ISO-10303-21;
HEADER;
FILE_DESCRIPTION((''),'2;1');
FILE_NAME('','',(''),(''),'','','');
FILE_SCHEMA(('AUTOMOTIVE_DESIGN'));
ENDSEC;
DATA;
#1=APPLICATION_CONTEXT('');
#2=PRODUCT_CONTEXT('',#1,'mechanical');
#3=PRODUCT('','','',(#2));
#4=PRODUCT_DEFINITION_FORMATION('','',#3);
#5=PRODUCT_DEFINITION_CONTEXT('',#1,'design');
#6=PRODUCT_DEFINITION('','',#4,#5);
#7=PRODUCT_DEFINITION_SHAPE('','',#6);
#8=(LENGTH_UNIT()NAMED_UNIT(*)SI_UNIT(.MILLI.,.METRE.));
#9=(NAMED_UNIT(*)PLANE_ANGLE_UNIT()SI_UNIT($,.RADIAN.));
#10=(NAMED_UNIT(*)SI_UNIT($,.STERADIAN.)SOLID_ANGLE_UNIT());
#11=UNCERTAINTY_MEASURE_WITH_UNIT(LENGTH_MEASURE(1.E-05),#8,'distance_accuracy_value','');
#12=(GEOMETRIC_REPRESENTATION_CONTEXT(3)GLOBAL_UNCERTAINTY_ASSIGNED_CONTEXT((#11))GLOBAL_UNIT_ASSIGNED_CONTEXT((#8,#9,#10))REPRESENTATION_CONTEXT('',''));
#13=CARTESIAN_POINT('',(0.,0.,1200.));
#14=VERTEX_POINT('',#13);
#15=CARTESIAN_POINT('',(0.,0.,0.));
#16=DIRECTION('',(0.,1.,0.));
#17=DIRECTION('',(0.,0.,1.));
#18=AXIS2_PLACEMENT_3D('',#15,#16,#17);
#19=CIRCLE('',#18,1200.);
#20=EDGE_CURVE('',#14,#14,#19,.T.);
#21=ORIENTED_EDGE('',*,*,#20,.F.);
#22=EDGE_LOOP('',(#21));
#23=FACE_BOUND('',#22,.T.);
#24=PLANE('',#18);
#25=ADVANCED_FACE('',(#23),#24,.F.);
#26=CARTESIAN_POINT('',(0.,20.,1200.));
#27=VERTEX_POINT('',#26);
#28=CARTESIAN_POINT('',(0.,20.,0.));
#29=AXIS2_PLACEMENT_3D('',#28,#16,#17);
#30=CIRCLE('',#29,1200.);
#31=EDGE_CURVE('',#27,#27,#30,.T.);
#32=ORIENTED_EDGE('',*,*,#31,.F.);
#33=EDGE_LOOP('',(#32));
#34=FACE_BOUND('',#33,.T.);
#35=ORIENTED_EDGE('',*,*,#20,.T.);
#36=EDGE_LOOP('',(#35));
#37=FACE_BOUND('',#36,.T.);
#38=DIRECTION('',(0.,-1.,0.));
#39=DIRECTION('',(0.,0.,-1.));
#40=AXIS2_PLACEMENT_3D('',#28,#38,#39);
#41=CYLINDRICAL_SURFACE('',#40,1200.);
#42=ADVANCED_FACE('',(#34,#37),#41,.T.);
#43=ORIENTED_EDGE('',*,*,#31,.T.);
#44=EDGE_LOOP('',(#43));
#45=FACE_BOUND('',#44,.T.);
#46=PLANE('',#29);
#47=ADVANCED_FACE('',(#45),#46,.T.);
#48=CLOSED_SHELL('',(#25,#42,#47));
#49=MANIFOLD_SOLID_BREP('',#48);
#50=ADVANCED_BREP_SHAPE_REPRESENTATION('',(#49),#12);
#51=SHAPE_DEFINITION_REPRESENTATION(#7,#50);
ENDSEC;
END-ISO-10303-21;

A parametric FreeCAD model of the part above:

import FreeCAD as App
import Part
import Sketcher

V = App.Vector

doc = App.newDocument("Part")
params = doc.addObject("Spreadsheet::Sheet", "Params")
for row, (alias, value) in enumerate([
    ("sketch1_diameter", "2400 mm"),
    ("pad1_length", "20 mm"),
], start=1):
    params.set(f"A{row}", alias)
    params.set(f"B{row}", "=" + value)
    params.setAlias(f"B{row}", alias)

body = doc.addObject("PartDesign::Body", "Body")

# Sketch on XZ plane
sketch1 = body.newObject("Sketcher::SketchObject", "Sketch")
sketch1.AttachmentSupport = (doc.getObject("XZ_Plane"), [""])
sketch1.MapMode = "FlatFace"
sketch1.addGeometry(Part.Circle(V(0, 0, 0), V(0, 0, 1), 1200), False)
sketch1.addConstraint([
    Sketcher.Constraint("Coincident", 0, 3, -1, 1),
    Sketcher.Constraint("Diameter", 0, 2400.0),
])
sketch1.setExpression("Constraints[1]", "Params.sketch1_diameter")
pad1 = body.newObject("PartDesign::Pad", "Pad")
pad1.Profile = sketch1
pad1.setExpression("Length", "Params.pad1_length")
pad1.Reversed = True

doc.recompute()
